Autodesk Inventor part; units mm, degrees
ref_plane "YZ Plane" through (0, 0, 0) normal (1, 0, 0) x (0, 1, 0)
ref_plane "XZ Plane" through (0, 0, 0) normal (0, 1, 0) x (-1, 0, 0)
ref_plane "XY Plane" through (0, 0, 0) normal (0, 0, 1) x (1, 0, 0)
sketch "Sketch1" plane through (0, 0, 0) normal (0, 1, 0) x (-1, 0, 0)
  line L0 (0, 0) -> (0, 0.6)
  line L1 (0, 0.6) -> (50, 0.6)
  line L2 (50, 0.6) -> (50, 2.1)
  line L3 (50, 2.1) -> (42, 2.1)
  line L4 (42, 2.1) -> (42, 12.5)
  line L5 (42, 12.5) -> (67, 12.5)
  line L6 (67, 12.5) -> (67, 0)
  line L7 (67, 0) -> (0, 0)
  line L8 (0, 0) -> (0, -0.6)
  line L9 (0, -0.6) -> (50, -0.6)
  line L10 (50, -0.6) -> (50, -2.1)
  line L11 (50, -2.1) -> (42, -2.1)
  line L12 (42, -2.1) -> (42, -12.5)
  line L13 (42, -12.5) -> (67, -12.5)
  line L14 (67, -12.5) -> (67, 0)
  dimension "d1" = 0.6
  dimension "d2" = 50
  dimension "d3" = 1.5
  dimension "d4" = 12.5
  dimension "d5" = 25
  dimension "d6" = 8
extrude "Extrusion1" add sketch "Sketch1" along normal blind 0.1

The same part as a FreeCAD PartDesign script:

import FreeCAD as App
import Part
import Sketcher
from FreeCAD import Vector

doc = App.newDocument("Part")
body = doc.addObject("PartDesign::Body", "Body")

# Sketch on XZ plane
sketch1 = doc.addObject("Sketcher::SketchObject", "Sketch")
body.addObject(sketch1)
sketch1.AttachmentSupport = (doc.XZ_Plane, [""])
sketch1.MapMode = "FlatFace"
sketch1.addGeometry(Part.LineSegment(Vector(0, 0.6, 0), Vector(0, -0.6, 0)), False)
sketch1.addGeometry(Part.LineSegment(Vector(0, -0.6, 0), Vector(-50, -0.6, 0)), False)
sketch1.addGeometry(Part.LineSegment(Vector(-50, -0.6, 0), Vector(-50, -2.1, 0)), False)
sketch1.addGeometry(Part.LineSegment(Vector(-50, -2.1, 0), Vector(-42, -2.1, 0)), False)
sketch1.addGeometry(Part.LineSegment(Vector(-42, -2.1, 0), Vector(-42, -12.5, 0)), False)
sketch1.addGeometry(Part.LineSegment(Vector(-42, -12.5, 0), Vector(-67, -12.5, 0)), False)
sketch1.addGeometry(Part.LineSegment(Vector(-67, -12.5, 0), Vector(-67, 12.5, 0)), False)
sketch1.addGeometry(Part.LineSegment(Vector(-67, 12.5, 0), Vector(-42, 12.5, 0)), False)
sketch1.addGeometry(Part.LineSegment(Vector(-42, 12.5, 0), Vector(-42, 2.1, 0)), False)
sketch1.addGeometry(Part.LineSegment(Vector(-42, 2.1, 0), Vector(-50, 2.1, 0)), False)
sketch1.addGeometry(Part.LineSegment(Vector(-50, 2.1, 0), Vector(-50, 0.6, 0)), False)
sketch1.addGeometry(Part.LineSegment(Vector(-50, 0.6, 0), Vector(0, 0.6, 0)), False)
sketch1.addConstraint(Sketcher.Constraint("Coincident", 0, 2, 1, 1))
sketch1.addConstraint(Sketcher.Constraint("Coincident", 1, 2, 2, 1))
sketch1.addConstraint(Sketcher.Constraint("Coincident", 2, 2, 3, 1))
sketch1.addConstraint(Sketcher.Constraint("Coincident", 3, 2, 4, 1))
sketch1.addConstraint(Sketcher.Constraint("Coincident", 4, 2, 5, 1))
sketch1.addConstraint(Sketcher.Constraint("Coincident", 5, 2, 6, 1))
sketch1.addConstraint(Sketcher.Constraint("Coincident", 6, 2, 7, 1))
sketch1.addConstraint(Sketcher.Constraint("Coincident", 7, 2, 8, 1))
sketch1.addConstraint(Sketcher.Constraint("Coincident", 8, 2, 9, 1))
sketch1.addConstraint(Sketcher.Constraint("Coincident", 9, 2, 10, 1))
sketch1.addConstraint(Sketcher.Constraint("Coincident", 10, 2, 11, 1))
sketch1.addConstraint(Sketcher.Constraint("Coincident", 11, 2, 0, 1))
sketch1.addConstraint(Sketcher.Constraint("Vertical", 0))
sketch1.addConstraint(Sketcher.Constraint("Horizontal", 1))
sketch1.addConstraint(Sketcher.Constraint("Vertical", 2))
sketch1.addConstraint(Sketcher.Constraint("Horizontal", 3))
sketch1.addConstraint(Sketcher.Constraint("Vertical", 4))
sketch1.addConstraint(Sketcher.Constraint("Horizontal", 5))
sketch1.addConstraint(Sketcher.Constraint("Vertical", 6))
sketch1.addConstraint(Sketcher.Constraint("Horizontal", 7))
sketch1.addConstraint(Sketcher.Constraint("Vertical", 8))
sketch1.addConstraint(Sketcher.Constraint("Horizontal", 9))
sketch1.addConstraint(Sketcher.Constraint("Vertical", 10))
sketch1.addConstraint(Sketcher.Constraint("Horizontal", 11))
sketch1.addConstraint(Sketcher.Constraint("Symmetric", 0, 2, 11, 2, -1, 1))
sketch1.addConstraint(Sketcher.Constraint("Symmetric", 4, 2, 7, 2, -1))
sketch1.addConstraint(Sketcher.Constraint("Symmetric", 2, 2, 9, 2, -1))
sketch1.addConstraint(Sketcher.Constraint("Equal", 7, 6))
sketch1.addConstraint(Sketcher.Constraint("DistanceX", 1, 2, 1, 1, 50.0))
sketch1.addConstraint(Sketcher.Constraint("DistanceX", 3, 1, 3, 2, 8.0))
sketch1.addConstraint(Sketcher.Constraint("DistanceX", 5, 2, 5, 1, 25.0))
sketch1.addConstraint(Sketcher.Constraint("DistanceY", 2, 2, 2, 1, 1.5))
sketch1.addConstraint(Sketcher.Constraint("DistanceY", 0, 2, -1, 1, 0.6))
pad1 = doc.addObject("PartDesign::Pad", "Pad")
body.addObject(pad1)
pad1.Profile = sketch1
pad1.Length = 0.1
pad1.Reversed = True

doc.recompute()
